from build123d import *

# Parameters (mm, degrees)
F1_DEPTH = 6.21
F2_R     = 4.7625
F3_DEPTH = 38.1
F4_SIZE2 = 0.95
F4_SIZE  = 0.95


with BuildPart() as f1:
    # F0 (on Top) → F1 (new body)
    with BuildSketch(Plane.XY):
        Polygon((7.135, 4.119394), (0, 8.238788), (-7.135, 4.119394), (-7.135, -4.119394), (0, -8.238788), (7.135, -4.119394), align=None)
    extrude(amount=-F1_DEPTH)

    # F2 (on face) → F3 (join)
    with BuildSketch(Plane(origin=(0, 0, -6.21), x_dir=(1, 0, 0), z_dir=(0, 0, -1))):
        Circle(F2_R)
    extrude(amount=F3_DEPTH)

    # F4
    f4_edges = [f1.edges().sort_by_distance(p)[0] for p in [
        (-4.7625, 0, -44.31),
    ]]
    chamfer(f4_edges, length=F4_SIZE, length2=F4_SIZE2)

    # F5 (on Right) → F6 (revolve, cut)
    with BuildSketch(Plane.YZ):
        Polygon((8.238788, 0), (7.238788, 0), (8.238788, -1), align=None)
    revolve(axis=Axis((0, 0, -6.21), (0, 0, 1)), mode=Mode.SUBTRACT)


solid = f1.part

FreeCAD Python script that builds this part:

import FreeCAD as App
import Part
import Sketcher

V = App.Vector
Q = App.Units.Quantity


def edges_at(feature, points):
    """Names of the edges that pass closest to the given points."""
    edges = feature.Shape.Edges
    near = lambda p: min(range(len(edges)), key=lambda i: edges[i].distToShape(Part.Vertex(*p))[0])
    return sorted({f"Edge{near(p) + 1}" for p in points})


def add_polygon(sketch, points):
    """Adds a closed chain of lines whose ends are joined by coincident constraints."""
    first, n = sketch.GeometryCount, len(points)
    for a, b in zip(points, points[1:] + points[:1]):
        sketch.addGeometry(Part.LineSegment(App.Vector(*a, 0), App.Vector(*b, 0)), False)
    for i in range(n):
        sketch.addConstraint(Sketcher.Constraint("Coincident", first + i, 2, first + (i + 1) % n, 1))

doc = App.newDocument("Part")
body = doc.addObject("PartDesign::Body", "Body")

# Sketch on XY plane
sketch1 = body.newObject("Sketcher::SketchObject", "Sketch")
sketch1.AttachmentSupport = (doc.getObject("XY_Plane"), [""])
sketch1.MapMode = "FlatFace"
add_polygon(sketch1, [(7.135, 4.119394), (0, 8.238788), (-7.135, 4.119394), (-7.135, -4.119394), (0, -8.238788), (7.135, -4.119394)])  # lines 0-5
sketch1.addConstraint(Sketcher.Constraint("Vertical", 2))
sketch1.addConstraint(Sketcher.Constraint("Vertical", 5))
sketch1.addConstraint(Sketcher.Constraint("Symmetric", 0, 2, 3, 2, -1, 1))
sketch1.addConstraint(Sketcher.Constraint("Symmetric", 1, 2, 4, 2, -1, 1))
sketch1.addConstraint(Sketcher.Constraint("PointOnObject", 0, 2, -2))
sketch1.addConstraint(Sketcher.Constraint("Parallel", 0, 3))
sketch1.addConstraint(Sketcher.Constraint("Horizontal", 2, 2, 4, 2))
sketch1.addConstraint(Sketcher.Constraint("Angle", 0, Q("150.000001 deg")))
sketch1.addConstraint(Sketcher.Constraint("DistanceX", 1, 2, -1, 1, Q("7.135 mm")))
sketch1.addConstraint(Sketcher.Constraint("DistanceY", 2, 2, 2, 1, Q("8.238788 mm")))
pad1 = body.newObject("PartDesign::Pad", "Pad")
pad1.Profile = sketch1
pad1.Length = 6.21
pad1.Reversed = True

# Sketch on XY plane
sketch2 = body.newObject("Sketcher::SketchObject", "Sketch001")
sketch2.AttachmentSupport = (doc.getObject("XY_Plane"), [""])
sketch2.MapMode = "FlatFace"
sketch2.AttachmentOffset = App.Placement(V(0, 0, -6.21), App.Rotation())
sketch2.addGeometry(Part.Circle(V(0, 0, 0), V(0, 0, 1), 4.7625), False)
sketch2.addConstraint(Sketcher.Constraint("Coincident", 0, 3, -1, 1))
sketch2.addConstraint(Sketcher.Constraint("Diameter", 0, Q("0.375 in")))
pad2 = body.newObject("PartDesign::Pad", "Pad001")
pad2.Profile = sketch2
pad2.Length = Q("1.5 in")
pad2.Reversed = True
doc.recompute()

chamfer = body.newObject("PartDesign::Chamfer", "Chamfer")
chamfer.Base = (pad2, edges_at(pad2, [(-4.763, 0, -44.31)]))
chamfer.ChamferType = "Two distances"
chamfer.Size = 0.95
chamfer.Size2 = 0.95

# Sketch on YZ plane
sketch3 = body.newObject("Sketcher::SketchObject", "Sketch002")
sketch3.AttachmentSupport = (doc.getObject("YZ_Plane"), [""])
sketch3.MapMode = "FlatFace"
add_polygon(sketch3, [(8.238788, 0), (7.238788, 0), (8.238788, -1)])  # lines 0-2
sketch3.addConstraint(Sketcher.Constraint("Horizontal", 0))
sketch3.addConstraint(Sketcher.Constraint("Vertical", 2))
sketch3.addConstraint(Sketcher.Constraint("PointOnObject", 0, 2, -1))
sketch3.addConstraint(Sketcher.Constraint("Equal", 0, 2))
sketch3.addConstraint(Sketcher.Constraint("DistanceX", 0, 2, 0, 1, Q("1 mm")))
sketch3.addConstraint(Sketcher.Constraint("DistanceX", -1, 1, 0, 2, Q("7.238788 mm")))
groove = body.newObject("PartDesign::Groove", "Groove")
groove.Profile = sketch3
groove.ReferenceAxis = (sketch3, ["V_Axis"])
groove.Angle = 360

doc.recompute()
